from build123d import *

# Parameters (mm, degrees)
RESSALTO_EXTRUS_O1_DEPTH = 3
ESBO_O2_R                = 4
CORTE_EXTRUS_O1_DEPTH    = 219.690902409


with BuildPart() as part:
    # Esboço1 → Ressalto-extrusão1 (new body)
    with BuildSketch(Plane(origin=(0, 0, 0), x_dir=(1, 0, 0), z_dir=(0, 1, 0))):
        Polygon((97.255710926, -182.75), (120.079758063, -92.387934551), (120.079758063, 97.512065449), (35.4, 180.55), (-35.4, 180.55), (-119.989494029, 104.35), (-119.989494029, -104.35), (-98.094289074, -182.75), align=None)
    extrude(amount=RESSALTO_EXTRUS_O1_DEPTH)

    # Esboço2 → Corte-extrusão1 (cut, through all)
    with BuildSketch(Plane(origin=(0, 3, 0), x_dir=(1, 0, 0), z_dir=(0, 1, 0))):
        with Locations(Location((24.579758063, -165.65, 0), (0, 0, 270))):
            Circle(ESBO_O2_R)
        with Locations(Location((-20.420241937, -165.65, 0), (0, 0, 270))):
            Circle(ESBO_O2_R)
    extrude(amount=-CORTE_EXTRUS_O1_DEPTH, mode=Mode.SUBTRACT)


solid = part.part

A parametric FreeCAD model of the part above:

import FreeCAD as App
import Part
import Sketcher
from FreeCAD import Vector

doc = App.newDocument("Part")
body = doc.addObject("PartDesign::Body", "Body")

sketch1 = doc.addObject("Sketcher::SketchObject", "Sketch")
body.addObject(sketch1)
sketch1.AttachmentSupport = (doc.XZ_Plane, [""])
sketch1.MapMode = "FlatFace"
sketch1.addGeometry([
    Part.LineSegment(Vector(97.255711, 182.75, 0), Vector(120.079758, 92.387935, 0)),
    Part.LineSegment(Vector(120.079758, 92.387935, 0), Vector(120.079758, -97.512065, 0)),
    Part.LineSegment(Vector(120.079758, -97.512065, 0), Vector(35.4, -180.55, 0)),
    Part.LineSegment(Vector(35.4, -180.55, 0), Vector(-35.4, -180.55, 0)),
    Part.LineSegment(Vector(-35.4, -180.55, 0), Vector(-119.989494, -104.35, 0)),
    Part.LineSegment(Vector(-119.989494, -104.35, 0), Vector(-119.989494, 104.35, 0)),
    Part.LineSegment(Vector(-119.989494, 104.35, 0), Vector(-98.094289, 182.75, 0)),
    Part.LineSegment(Vector(-98.094289, 182.75, 0), Vector(97.255711, 182.75, 0)),
], False)
sketch1.addConstraint([
    Sketcher.Constraint("Coincident", 0, 2, 1, 1),
    Sketcher.Constraint("Coincident", 1, 2, 2, 1),
    Sketcher.Constraint("Coincident", 2, 2, 3, 1),
    Sketcher.Constraint("Coincident", 3, 2, 4, 1),
    Sketcher.Constraint("Coincident", 4, 2, 5, 1),
    Sketcher.Constraint("Coincident", 5, 2, 6, 1),
    Sketcher.Constraint("Coincident", 6, 2, 7, 1),
    Sketcher.Constraint("Coincident", 7, 2, 0, 1),
    Sketcher.Constraint("Vertical", 1),
    Sketcher.Constraint("Horizontal", 3),
    Sketcher.Constraint("Vertical", 5),
    Sketcher.Constraint("Horizontal", 7),
    Sketcher.Constraint("DistanceX", 3, 2, 3, 1, 70.8),
    Sketcher.Constraint("DistanceY", 1, 2, 1, 1, 189.9),
    Sketcher.Constraint("DistanceY", 5, 1, 5, 2, 208.7),
    Sketcher.Constraint("Distance", 0, 93.2),
    Sketcher.Constraint("Distance", 2, 118.6),
    Sketcher.Constraint("Distance", 6, 81.4),
    Sketcher.Constraint("DistanceX", 7, 1, 7, 2, 195.35),
    Sketcher.Constraint("DistanceX", -1, 1, 2, 2, 35.4),
    Sketcher.Constraint("DistanceY", 3, 2, 4, 2, 76.2),
    Sketcher.Constraint("DistanceY", 5, 2, 6, 2, 78.4),
    Sketcher.Constraint("Distance", 4, 113.85),
    Sketcher.Constraint("DistanceY", 2, 2, -1, 1, 180.55),
])
pad1 = doc.addObject("PartDesign::Pad", "Pad")
body.addObject(pad1)
pad1.Profile = sketch1
pad1.Length = 3
pad1.Reversed = True

sketch2 = doc.addObject("Sketcher::SketchObject", "Sketch001")
body.addObject(sketch2)
sketch2.AttachmentSupport = (doc.XZ_Plane, [""])
sketch2.MapMode = "FlatFace"
sketch2.AttachmentOffset = App.Placement(Vector(0, 0, -3), App.Rotation())
sketch2.addGeometry([
    Part.Circle(Vector(24.579758, 165.65, 0), Vector(0, 0, 1), 4),
    Part.Circle(Vector(-20.420242, 165.65, 0), Vector(0, 0, 1), 4),
], False)
sketch2.addConstraint([
    Sketcher.Constraint("Equal", 0, 1),
    Sketcher.Constraint("Horizontal", 0, 3, 1, 3),
    Sketcher.Constraint("Diameter", 0, 8.0),
    Sketcher.Constraint("DistanceX", 1, 3, 0, 3, 45.0),
    Sketcher.Constraint("DistanceY", -1, 1, 0, 3, 165.65),
    Sketcher.Constraint("DistanceX", -1, 1, 0, 3, 24.579758),
])
pocket1 = doc.addObject("PartDesign::Pocket", "Pocket")
body.addObject(pocket1)
pocket1.Profile = sketch2
pocket1.Type = "ThroughAll"
pocket1.Reversed = True

doc.recompute()
